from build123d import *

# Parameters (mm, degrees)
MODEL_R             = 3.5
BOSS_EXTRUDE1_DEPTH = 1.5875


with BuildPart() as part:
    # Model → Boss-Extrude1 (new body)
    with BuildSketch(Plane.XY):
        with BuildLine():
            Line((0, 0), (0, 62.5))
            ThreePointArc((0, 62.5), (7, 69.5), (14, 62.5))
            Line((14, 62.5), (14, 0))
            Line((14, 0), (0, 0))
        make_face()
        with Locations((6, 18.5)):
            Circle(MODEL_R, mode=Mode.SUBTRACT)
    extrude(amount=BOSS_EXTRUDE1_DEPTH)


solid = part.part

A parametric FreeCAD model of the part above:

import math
import FreeCAD as App
import Part
import Sketcher
Q = App.Units.Quantity

doc = App.newDocument("Part")
body = doc.addObject("PartDesign::Body", "Body")

sketch1 = body.newObject("Sketcher::SketchObject", "Sketch")
sketch1.AttachmentSupport = (doc.getObject("XY_Plane"), [""])
sketch1.MapMode = "FlatFace"
sketch1.addGeometry([
    Part.LineSegment(App.Vector(0, 62.5, 0), App.Vector(0, 0, 0)),
    Part.LineSegment(App.Vector(0, 0, 0), App.Vector(14, 0, 0)),
    Part.LineSegment(App.Vector(14, 0, 0), App.Vector(14, 62.5, 0)),
    Part.ArcOfCircle(Part.Circle(App.Vector(7, 62.5, 0), App.Vector(0, 0, 1), 7), math.radians(0), math.radians(180)),
    Part.Circle(App.Vector(6, 18.5, 0), App.Vector(0, 0, 1), 3.5),
], False)
sketch1.addConstraint([
    Sketcher.Constraint("Coincident", 0, 2, 1, 1),
    Sketcher.Constraint("Coincident", 1, 2, 2, 1),
    Sketcher.Constraint("Tangent", 2, 2, 3, 1),
    Sketcher.Constraint("Tangent", 3, 2, 0, 1),
    Sketcher.Constraint("Vertical", 0),
    Sketcher.Constraint("Horizontal", 1),
    Sketcher.Constraint("Vertical", 2),
    Sketcher.Constraint("Coincident", 0, 2, -1, 1),
    Sketcher.Constraint("Diameter", 4, Q("7 mm")),
    Sketcher.Constraint("Radius", 3, Q("7 mm")),
    Sketcher.Constraint("DistanceY", 0, 2, 0, 1, Q("62.5 mm")),
    Sketcher.Constraint("DistanceX", -1, 1, 4, 3, Q("6 mm")),
    Sketcher.Constraint("DistanceY", 4, 3, 3, 3, Q("44 mm")),
])
pad1 = body.newObject("PartDesign::Pad", "Pad")
pad1.Profile = sketch1
pad1.Length = 1.5875

doc.recompute()
